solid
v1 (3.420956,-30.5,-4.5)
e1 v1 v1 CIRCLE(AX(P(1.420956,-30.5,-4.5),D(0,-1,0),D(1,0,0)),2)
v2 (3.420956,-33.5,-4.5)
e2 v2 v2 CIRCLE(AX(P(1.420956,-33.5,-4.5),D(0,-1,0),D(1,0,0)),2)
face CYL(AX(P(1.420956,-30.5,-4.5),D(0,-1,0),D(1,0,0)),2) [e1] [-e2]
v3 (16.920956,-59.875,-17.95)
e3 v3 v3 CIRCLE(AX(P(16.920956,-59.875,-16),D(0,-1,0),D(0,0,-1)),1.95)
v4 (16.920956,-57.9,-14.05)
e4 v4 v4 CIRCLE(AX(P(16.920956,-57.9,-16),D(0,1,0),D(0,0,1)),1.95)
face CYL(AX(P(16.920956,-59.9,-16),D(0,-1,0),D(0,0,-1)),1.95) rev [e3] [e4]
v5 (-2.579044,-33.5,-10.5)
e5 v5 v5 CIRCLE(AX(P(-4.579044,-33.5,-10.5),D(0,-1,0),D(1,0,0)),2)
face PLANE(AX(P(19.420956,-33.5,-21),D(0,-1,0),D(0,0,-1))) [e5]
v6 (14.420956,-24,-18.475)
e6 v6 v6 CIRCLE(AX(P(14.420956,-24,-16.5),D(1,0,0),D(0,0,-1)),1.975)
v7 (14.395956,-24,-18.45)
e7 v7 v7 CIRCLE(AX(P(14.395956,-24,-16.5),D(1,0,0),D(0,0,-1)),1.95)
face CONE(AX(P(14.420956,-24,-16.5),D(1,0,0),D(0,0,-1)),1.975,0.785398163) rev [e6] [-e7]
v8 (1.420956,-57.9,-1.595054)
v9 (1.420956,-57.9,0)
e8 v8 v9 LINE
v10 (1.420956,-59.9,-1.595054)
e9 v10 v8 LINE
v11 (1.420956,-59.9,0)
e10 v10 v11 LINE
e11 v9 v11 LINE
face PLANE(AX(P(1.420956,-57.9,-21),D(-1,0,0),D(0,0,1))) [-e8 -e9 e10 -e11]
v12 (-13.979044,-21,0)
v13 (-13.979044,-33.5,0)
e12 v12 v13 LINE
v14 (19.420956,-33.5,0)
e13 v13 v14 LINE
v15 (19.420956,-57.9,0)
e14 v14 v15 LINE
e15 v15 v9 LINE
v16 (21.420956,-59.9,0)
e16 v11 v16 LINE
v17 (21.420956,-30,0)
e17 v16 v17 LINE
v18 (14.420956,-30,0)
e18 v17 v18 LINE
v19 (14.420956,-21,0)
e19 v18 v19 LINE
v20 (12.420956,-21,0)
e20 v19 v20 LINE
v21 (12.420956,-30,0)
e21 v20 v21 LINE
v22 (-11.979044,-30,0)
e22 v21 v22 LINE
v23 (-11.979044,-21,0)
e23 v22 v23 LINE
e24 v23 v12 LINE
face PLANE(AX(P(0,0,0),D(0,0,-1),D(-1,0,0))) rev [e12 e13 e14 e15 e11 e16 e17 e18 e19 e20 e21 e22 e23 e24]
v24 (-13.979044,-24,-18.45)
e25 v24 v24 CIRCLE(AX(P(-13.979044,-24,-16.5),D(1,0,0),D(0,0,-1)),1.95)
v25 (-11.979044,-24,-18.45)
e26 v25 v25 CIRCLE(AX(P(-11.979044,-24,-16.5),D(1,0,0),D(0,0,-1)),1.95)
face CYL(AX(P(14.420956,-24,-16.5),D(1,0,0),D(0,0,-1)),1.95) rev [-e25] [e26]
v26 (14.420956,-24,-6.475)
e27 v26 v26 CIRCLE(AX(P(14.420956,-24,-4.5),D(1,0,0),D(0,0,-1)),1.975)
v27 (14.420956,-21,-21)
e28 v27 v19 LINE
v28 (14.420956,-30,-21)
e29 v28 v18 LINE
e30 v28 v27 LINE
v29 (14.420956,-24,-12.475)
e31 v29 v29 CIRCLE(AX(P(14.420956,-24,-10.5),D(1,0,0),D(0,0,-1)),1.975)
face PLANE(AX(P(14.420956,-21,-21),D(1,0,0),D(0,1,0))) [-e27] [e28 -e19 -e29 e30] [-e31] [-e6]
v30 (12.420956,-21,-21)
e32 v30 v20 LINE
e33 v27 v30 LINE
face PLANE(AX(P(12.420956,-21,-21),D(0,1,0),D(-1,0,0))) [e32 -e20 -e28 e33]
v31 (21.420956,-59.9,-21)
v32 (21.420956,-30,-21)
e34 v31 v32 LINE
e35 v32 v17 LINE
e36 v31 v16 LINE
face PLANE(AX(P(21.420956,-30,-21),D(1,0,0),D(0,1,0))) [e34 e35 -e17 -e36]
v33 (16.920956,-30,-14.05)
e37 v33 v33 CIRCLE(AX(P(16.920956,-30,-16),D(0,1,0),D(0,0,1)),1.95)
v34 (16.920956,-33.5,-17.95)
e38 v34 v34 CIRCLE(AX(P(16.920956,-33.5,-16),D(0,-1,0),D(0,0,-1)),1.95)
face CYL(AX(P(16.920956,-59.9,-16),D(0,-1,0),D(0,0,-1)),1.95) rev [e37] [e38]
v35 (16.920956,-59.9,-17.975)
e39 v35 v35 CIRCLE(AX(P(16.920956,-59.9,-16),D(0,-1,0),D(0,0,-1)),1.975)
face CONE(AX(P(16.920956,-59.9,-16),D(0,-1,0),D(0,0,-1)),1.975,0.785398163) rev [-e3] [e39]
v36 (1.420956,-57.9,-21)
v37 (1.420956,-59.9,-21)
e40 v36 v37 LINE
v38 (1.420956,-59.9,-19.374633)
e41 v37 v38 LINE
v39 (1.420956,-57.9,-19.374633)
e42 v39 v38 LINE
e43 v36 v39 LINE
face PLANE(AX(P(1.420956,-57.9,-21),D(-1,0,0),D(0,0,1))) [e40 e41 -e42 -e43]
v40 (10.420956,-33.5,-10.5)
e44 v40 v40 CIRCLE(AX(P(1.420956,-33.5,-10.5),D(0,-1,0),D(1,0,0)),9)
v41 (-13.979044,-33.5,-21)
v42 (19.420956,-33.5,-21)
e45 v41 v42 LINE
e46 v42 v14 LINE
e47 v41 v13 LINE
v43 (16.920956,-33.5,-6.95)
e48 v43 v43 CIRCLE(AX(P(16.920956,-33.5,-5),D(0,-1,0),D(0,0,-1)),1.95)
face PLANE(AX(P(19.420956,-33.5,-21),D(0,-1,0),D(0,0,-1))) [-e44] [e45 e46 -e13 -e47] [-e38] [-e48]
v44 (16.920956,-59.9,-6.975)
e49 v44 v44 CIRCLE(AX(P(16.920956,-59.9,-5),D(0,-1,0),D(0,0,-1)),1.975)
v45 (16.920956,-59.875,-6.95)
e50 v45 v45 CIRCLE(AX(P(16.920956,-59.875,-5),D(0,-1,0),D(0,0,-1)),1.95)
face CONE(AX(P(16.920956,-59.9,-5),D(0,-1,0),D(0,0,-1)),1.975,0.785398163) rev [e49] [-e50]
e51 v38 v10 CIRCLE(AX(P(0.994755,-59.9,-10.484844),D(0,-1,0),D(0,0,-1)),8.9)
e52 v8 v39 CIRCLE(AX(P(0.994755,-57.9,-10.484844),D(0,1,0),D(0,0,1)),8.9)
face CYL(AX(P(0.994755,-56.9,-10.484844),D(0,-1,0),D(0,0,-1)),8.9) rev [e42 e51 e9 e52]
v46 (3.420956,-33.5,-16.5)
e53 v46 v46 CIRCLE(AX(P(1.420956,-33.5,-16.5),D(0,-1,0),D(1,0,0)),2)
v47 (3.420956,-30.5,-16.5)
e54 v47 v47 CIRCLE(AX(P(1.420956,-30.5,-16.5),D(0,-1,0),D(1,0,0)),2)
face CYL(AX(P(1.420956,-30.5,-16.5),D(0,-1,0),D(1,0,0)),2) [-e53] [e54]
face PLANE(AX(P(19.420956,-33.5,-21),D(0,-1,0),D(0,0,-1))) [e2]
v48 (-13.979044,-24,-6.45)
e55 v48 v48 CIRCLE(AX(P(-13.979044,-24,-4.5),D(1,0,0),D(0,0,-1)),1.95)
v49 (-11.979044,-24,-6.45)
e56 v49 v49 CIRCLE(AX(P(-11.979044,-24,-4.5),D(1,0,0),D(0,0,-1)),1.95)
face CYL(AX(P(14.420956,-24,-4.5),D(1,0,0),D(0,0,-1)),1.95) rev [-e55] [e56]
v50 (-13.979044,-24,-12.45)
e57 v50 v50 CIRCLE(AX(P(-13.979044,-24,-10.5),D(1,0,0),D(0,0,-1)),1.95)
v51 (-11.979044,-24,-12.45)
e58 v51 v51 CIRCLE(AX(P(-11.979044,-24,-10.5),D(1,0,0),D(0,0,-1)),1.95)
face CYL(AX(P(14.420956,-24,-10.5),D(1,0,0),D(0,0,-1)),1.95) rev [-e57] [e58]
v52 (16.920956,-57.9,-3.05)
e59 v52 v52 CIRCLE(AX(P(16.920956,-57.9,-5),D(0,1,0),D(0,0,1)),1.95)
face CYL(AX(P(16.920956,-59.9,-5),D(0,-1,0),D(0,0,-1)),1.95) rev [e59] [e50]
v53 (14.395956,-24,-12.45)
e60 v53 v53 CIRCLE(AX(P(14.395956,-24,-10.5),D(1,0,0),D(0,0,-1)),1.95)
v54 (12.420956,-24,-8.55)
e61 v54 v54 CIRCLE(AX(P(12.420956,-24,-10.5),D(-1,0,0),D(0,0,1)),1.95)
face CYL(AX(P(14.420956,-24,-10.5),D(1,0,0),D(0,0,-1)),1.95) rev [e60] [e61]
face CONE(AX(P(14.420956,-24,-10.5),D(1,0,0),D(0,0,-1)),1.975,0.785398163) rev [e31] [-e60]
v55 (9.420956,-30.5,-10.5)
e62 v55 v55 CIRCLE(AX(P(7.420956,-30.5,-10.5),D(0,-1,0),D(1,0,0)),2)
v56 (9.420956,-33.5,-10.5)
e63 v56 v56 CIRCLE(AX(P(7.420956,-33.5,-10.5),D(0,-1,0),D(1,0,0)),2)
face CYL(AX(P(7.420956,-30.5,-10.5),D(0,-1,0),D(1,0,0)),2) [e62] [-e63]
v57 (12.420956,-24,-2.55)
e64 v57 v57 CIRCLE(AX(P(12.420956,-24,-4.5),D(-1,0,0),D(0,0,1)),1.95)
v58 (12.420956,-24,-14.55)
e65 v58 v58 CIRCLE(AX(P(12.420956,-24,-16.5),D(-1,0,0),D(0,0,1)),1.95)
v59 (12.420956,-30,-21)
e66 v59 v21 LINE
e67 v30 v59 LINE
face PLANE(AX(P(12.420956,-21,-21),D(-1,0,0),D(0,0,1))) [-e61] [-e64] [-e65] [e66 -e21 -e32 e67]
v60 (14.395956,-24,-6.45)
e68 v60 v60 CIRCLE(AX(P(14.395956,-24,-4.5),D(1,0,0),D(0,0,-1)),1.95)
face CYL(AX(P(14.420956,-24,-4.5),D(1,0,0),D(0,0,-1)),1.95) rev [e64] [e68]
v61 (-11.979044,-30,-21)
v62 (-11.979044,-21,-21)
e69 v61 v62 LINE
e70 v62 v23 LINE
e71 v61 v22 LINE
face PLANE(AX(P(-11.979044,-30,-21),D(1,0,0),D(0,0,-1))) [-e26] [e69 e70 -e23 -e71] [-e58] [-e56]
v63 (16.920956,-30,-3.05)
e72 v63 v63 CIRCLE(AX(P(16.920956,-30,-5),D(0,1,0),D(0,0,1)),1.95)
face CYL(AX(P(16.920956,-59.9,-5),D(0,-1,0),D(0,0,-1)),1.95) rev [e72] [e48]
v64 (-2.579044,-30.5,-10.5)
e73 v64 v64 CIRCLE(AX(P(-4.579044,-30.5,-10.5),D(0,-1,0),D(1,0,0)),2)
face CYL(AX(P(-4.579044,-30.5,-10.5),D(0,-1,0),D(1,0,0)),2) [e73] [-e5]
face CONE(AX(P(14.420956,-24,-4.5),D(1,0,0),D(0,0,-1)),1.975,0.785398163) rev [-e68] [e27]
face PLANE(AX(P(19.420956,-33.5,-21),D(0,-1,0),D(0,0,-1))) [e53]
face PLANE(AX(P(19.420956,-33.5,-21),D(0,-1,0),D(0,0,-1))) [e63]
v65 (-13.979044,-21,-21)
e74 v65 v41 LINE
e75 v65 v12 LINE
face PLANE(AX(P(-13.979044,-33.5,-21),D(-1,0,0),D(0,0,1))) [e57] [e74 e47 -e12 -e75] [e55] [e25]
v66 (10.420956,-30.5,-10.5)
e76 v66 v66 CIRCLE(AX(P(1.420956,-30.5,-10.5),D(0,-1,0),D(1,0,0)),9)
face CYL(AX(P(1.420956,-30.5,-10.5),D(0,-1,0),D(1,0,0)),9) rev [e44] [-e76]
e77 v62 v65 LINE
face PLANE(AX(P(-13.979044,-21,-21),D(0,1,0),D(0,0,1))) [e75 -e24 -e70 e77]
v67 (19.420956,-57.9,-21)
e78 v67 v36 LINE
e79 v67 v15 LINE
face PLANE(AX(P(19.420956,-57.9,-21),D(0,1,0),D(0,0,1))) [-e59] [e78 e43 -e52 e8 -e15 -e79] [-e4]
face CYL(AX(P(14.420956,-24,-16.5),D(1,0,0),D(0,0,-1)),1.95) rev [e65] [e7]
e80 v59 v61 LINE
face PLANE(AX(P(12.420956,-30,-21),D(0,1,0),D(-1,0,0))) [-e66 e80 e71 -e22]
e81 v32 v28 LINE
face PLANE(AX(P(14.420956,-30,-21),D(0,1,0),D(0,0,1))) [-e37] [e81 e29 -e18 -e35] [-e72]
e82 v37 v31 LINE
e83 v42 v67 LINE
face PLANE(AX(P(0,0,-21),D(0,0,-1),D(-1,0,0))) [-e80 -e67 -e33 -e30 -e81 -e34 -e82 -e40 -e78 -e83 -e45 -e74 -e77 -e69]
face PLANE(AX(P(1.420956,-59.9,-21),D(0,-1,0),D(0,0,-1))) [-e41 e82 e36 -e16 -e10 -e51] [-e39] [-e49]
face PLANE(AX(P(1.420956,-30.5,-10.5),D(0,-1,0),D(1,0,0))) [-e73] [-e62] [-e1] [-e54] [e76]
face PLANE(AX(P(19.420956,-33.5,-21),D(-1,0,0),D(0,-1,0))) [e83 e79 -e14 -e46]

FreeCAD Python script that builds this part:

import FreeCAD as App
import Part
import Sketcher
from FreeCAD import Vector

doc = App.newDocument("Part")
body = doc.addObject("PartDesign::Body", "Body")

sketch1 = body.newObject("Sketcher::SketchObject", "Sketch")
sketch1.AttachmentSupport = (doc.getObject("XY_Plane"), [""])
sketch1.MapMode = "FlatFace"
sketch1.addGeometry(Part.LineSegment(Vector(21.420956, -30, 0), Vector(14.420956, -30, 0)), False)
sketch1.addGeometry(Part.LineSegment(Vector(14.420956, -30, 0), Vector(14.420956, -21, 0)), False)
sketch1.addGeometry(Part.LineSegment(Vector(14.420956, -21, 0), Vector(12.420956, -21, 0)), False)
sketch1.addGeometry(Part.LineSegment(Vector(12.420956, -21, 0), Vector(12.420956, -30, 0)), False)
sketch1.addGeometry(Part.LineSegment(Vector(12.420956, -30, 0), Vector(-11.979044, -30, 0)), False)
sketch1.addGeometry(Part.LineSegment(Vector(-11.979044, -30, 0), Vector(-11.979044, -21, 0)), False)
sketch1.addGeometry(Part.LineSegment(Vector(-11.979044, -21, 0), Vector(-13.979044, -21, 0)), False)
sketch1.addGeometry(Part.LineSegment(Vector(-13.979044, -21, 0), Vector(-13.979044, -33.5, 0)), False)
sketch1.addGeometry(Part.LineSegment(Vector(-13.979044, -33.5, 0), Vector(19.420956, -33.5, 0)), False)
sketch1.addGeometry(Part.LineSegment(Vector(19.420956, -33.5, 0), Vector(19.420956, -57.9, 0)), False)
sketch1.addGeometry(Part.LineSegment(Vector(19.420956, -57.9, 0), Vector(1.420956, -57.9, 0)), False)
sketch1.addGeometry(Part.LineSegment(Vector(1.420956, -57.9, 0), Vector(1.420956, -59.9, 0)), False)
sketch1.addGeometry(Part.LineSegment(Vector(1.420956, -59.9, 0), Vector(21.420956, -59.9, 0)), False)
sketch1.addGeometry(Part.LineSegment(Vector(21.420956, -59.9, 0), Vector(21.420956, -30, 0)), False)
sketch1.addConstraint(Sketcher.Constraint("Coincident", 0, 2, 1, 1))
sketch1.addConstraint(Sketcher.Constraint("Coincident", 1, 2, 2, 1))
sketch1.addConstraint(Sketcher.Constraint("Coincident", 2, 2, 3, 1))
sketch1.addConstraint(Sketcher.Constraint("Coincident", 3, 2, 4, 1))
sketch1.addConstraint(Sketcher.Constraint("Coincident", 4, 2, 5, 1))
sketch1.addConstraint(Sketcher.Constraint("Coincident", 5, 2, 6, 1))
sketch1.addConstraint(Sketcher.Constraint("Coincident", 6, 2, 7, 1))
sketch1.addConstraint(Sketcher.Constraint("Coincident", 7, 2, 8, 1))
sketch1.addConstraint(Sketcher.Constraint("Coincident", 8, 2, 9, 1))
sketch1.addConstraint(Sketcher.Constraint("Coincident", 9, 2, 10, 1))
sketch1.addConstraint(Sketcher.Constraint("Coincident", 10, 2, 11, 1))
sketch1.addConstraint(Sketcher.Constraint("Coincident", 11, 2, 12, 1))
sketch1.addConstraint(Sketcher.Constraint("Coincident", 12, 2, 13, 1))
sketch1.addConstraint(Sketcher.Constraint("Coincident", 13, 2, 0, 1))
sketch1.addConstraint(Sketcher.Constraint("Horizontal", 0))
sketch1.addConstraint(Sketcher.Constraint("Vertical", 1))
sketch1.addConstraint(Sketcher.Constraint("Horizontal", 2))
sketch1.addConstraint(Sketcher.Constraint("Vertical", 3))
sketch1.addConstraint(Sketcher.Constraint("Horizontal", 4))
sketch1.addConstraint(Sketcher.Constraint("Vertical", 5))
sketch1.addConstraint(Sketcher.Constraint("Horizontal", 6))
sketch1.addConstraint(Sketcher.Constraint("Vertical", 7))
sketch1.addConstraint(Sketcher.Constraint("Horizontal", 8))
sketch1.addConstraint(Sketcher.Constraint("Vertical", 9))
sketch1.addConstraint(Sketcher.Constraint("Horizontal", 10))
sketch1.addConstraint(Sketcher.Constraint("Vertical", 11))
sketch1.addConstraint(Sketcher.Constraint("Horizontal", 12))
sketch1.addConstraint(Sketcher.Constraint("Vertical", 13))
sketch1.addConstraint(Sketcher.Constraint("Horizontal", 0, 2, 3, 2))
sketch1.addConstraint(Sketcher.Constraint("Horizontal", 2, 2, 5, 2))
sketch1.addConstraint(Sketcher.Constraint("Equal", 2, 6))
sketch1.addConstraint(Sketcher.Constraint("Equal", 4, 9))
sketch1.addConstraint(Sketcher.Constraint("Equal", 6, 11))
sketch1.addConstraint(Sketcher.Constraint("DistanceX", 0, 2, 0, 1, 7.0))
sketch1.addConstraint(Sketcher.Constraint("DistanceX", 2, 2, 2, 1, 2.0))
sketch1.addConstraint(Sketcher.Constraint("DistanceX", 10, 2, 10, 1, 18.0))
sketch1.addConstraint(Sketcher.Constraint("DistanceX", 12, 1, 12, 2, 20.0))
sketch1.addConstraint(Sketcher.Constraint("DistanceY", 1, 1, 1, 2, 9.0))
sketch1.addConstraint(Sketcher.Constraint("DistanceX", 4, 2, 4, 1, 24.4))
sketch1.addConstraint(Sketcher.Constraint("DistanceY", 7, 2, 7, 1, 12.5))
sketch1.addConstraint(Sketcher.Constraint("DistanceY", 0, 2, -1, 1, 30.0))
sketch1.addConstraint(Sketcher.Constraint("DistanceX", -1, 1, 0, 2, 14.420956))
pad1 = body.newObject("PartDesign::Pad", "Pad")
pad1.Profile = sketch1
pad1.Length = 21
pad1.Reversed = True

sketch2 = body.newObject("Sketcher::SketchObject", "Sketch001")
sketch2.AttachmentSupport = (doc.getObject("YZ_Plane"), [""])
sketch2.MapMode = "FlatFace"
sketch2.AttachmentOffset = App.Placement(Vector(0, 0, 14.420956), App.Rotation())
sketch2.addGeometry(Part.Circle(Vector(-24, -4.5, 0), Vector(0, 0, 1), 1.95), False)
sketch2.addGeometry(Part.Circle(Vector(-24, -10.5, 0), Vector(0, 0, 1), 1.95), False)
sketch2.addGeometry(Part.Circle(Vector(-24, -16.5, 0), Vector(0, 0, 1), 1.95), False)
sketch2.addConstraint(Sketcher.Constraint("Equal", 0, 1))
sketch2.addConstraint(Sketcher.Constraint("Equal", 1, 2))
sketch2.addConstraint(Sketcher.Constraint("Vertical", 0, 3, 1, 3))
sketch2.addConstraint(Sketcher.Constraint("Vertical", 1, 3, 2, 3))
sketch2.addConstraint(Sketcher.Constraint("Diameter", 0, 3.9))
sketch2.addConstraint(Sketcher.Constraint("DistanceX", 0, 3, -1, 1, 24.0))
sketch2.addConstraint(Sketcher.Constraint("DistanceY", 1, 3, 0, 3, 6.0))
sketch2.addConstraint(Sketcher.Constraint("DistanceY", 2, 3, 1, 3, 6.0))
sketch2.addConstraint(Sketcher.Constraint("DistanceY", 0, 3, -1, 1, 4.5))
doc.recompute()
hole = body.newObject("PartDesign::Hole", "Hole")
hole.Profile = sketch2
hole.ThreadType = "None"
hole.Diameter = 3.9
hole.DepthType = "ThroughAll"
hole.HoleCutType = "Countersink"
hole.HoleCutDiameter = 3.95
hole.HoleCutCountersinkAngle = 90

sketch3 = body.newObject("Sketcher::SketchObject", "Sketch002")
sketch3.AttachmentSupport = (doc.getObject("XZ_Plane"), [""])
sketch3.MapMode = "FlatFace"
sketch3.AttachmentOffset = App.Placement(Vector(0, 0, 33.5), App.Rotation())
sketch3.addGeometry(Part.Circle(Vector(1.420956, -10.5, 0), Vector(0, 0, 1), 9), False)
sketch3.addGeometry(Part.Circle(Vector(1.420956, -16.5, 0), Vector(0, 0, 1), 2), False)
sketch3.addGeometry(Part.Circle(Vector(-4.579044, -10.5, 0), Vector(0, 0, 1), 2), False)
sketch3.addGeometry(Part.Circle(Vector(7.420956, -10.5, 0), Vector(0, 0, 1), 2), False)
sketch3.addGeometry(Part.Circle(Vector(1.420956, -4.5, 0), Vector(0, 0, 1), 2), False)
sketch3.addConstraint(Sketcher.Constraint("Equal", 1, 2))
sketch3.addConstraint(Sketcher.Constraint("Equal", 2, 3))
sketch3.addConstraint(Sketcher.Constraint("Equal", 3, 4))
sketch3.addConstraint(Sketcher.Constraint("Horizontal", 0, 3, 2, 3))
sketch3.addConstraint(Sketcher.Constraint("Horizontal", 2, 3, 3, 3))
sketch3.addConstraint(Sketcher.Constraint("Vertical", 0, 3, 1, 3))
sketch3.addConstraint(Sketcher.Constraint("Vertical", 1, 3, 4, 3))
sketch3.addConstraint(Sketcher.Constraint("Diameter", 0, 18.0))
sketch3.addConstraint(Sketcher.Constraint("Diameter", 1, 4.0))
sketch3.addConstraint(Sketcher.Constraint("DistanceY", 1, 3, 0, 3, 6.0))
sketch3.addConstraint(Sketcher.Constraint("DistanceX", 2, 3, 0, 3, 6.0))
sketch3.addConstraint(Sketcher.Constraint("DistanceX", 0, 3, 3, 3, 6.0))
sketch3.addConstraint(Sketcher.Constraint("DistanceY", 0, 3, 4, 3, 6.0))
sketch3.addConstraint(Sketcher.Constraint("DistanceY", 0, 3, -1, 1, 10.5))
sketch3.addConstraint(Sketcher.Constraint("DistanceX", -1, 1, 0, 3, 1.420956))
pocket1 = body.newObject("PartDesign::Pocket", "Pocket")
pocket1.Profile = sketch3
pocket1.Length = 3

sketch4 = body.newObject("Sketcher::SketchObject", "Sketch003")
sketch4.AttachmentSupport = (doc.getObject("XZ_Plane"), [""])
sketch4.MapMode = "FlatFace"
sketch4.AttachmentOffset = App.Placement(Vector(0, 0, 59.9), App.Rotation())
sketch4.addGeometry(Part.Circle(Vector(0.994755, -10.484844, 0), Vector(0, 0, 1), 8.9), False)
sketch4.addConstraint(Sketcher.Constraint("Diameter", 0, 17.8))
sketch4.addConstraint(Sketcher.Constraint("DistanceX", -1, 1, 0, 3, 0.994755))
sketch4.addConstraint(Sketcher.Constraint("DistanceY", 0, 3, -1, 1, 10.484844))
pocket2 = body.newObject("PartDesign::Pocket", "Pocket001")
pocket2.Profile = sketch4
pocket2.Length = 3

sketch5 = body.newObject("Sketcher::SketchObject", "Sketch004")
sketch5.AttachmentSupport = (doc.getObject("XZ_Plane"), [""])
sketch5.MapMode = "FlatFace"
sketch5.AttachmentOffset = App.Placement(Vector(0, 0, 59.9), App.Rotation())
sketch5.addGeometry(Part.Circle(Vector(16.920956, -16, 0), Vector(0, 0, 1), 1.95), False)
sketch5.addGeometry(Part.Circle(Vector(16.920956, -5, 0), Vector(0, 0, 1), 1.95), False)
sketch5.addConstraint(Sketcher.Constraint("Equal", 0, 1))
sketch5.addConstraint(Sketcher.Constraint("Vertical", 0, 3, 1, 3))
sketch5.addConstraint(Sketcher.Constraint("Diameter", 0, 3.9))
sketch5.addConstraint(Sketcher.Constraint("DistanceY", 0, 3, -1, 1, 16.0))
sketch5.addConstraint(Sketcher.Constraint("DistanceY", 1, 3, -1, 1, 5.0))
sketch5.addConstraint(Sketcher.Constraint("DistanceX", -1, 1, 0, 3, 16.920956))
doc.recompute()
hole2 = body.newObject("PartDesign::Hole", "Hole001")
hole2.Profile = sketch5
hole2.ThreadType = "None"
hole2.Diameter = 3.9
hole2.DepthType = "ThroughAll"
hole2.HoleCutType = "Countersink"
hole2.HoleCutDiameter = 3.95
hole2.HoleCutCountersinkAngle = 90

doc.recompute()
